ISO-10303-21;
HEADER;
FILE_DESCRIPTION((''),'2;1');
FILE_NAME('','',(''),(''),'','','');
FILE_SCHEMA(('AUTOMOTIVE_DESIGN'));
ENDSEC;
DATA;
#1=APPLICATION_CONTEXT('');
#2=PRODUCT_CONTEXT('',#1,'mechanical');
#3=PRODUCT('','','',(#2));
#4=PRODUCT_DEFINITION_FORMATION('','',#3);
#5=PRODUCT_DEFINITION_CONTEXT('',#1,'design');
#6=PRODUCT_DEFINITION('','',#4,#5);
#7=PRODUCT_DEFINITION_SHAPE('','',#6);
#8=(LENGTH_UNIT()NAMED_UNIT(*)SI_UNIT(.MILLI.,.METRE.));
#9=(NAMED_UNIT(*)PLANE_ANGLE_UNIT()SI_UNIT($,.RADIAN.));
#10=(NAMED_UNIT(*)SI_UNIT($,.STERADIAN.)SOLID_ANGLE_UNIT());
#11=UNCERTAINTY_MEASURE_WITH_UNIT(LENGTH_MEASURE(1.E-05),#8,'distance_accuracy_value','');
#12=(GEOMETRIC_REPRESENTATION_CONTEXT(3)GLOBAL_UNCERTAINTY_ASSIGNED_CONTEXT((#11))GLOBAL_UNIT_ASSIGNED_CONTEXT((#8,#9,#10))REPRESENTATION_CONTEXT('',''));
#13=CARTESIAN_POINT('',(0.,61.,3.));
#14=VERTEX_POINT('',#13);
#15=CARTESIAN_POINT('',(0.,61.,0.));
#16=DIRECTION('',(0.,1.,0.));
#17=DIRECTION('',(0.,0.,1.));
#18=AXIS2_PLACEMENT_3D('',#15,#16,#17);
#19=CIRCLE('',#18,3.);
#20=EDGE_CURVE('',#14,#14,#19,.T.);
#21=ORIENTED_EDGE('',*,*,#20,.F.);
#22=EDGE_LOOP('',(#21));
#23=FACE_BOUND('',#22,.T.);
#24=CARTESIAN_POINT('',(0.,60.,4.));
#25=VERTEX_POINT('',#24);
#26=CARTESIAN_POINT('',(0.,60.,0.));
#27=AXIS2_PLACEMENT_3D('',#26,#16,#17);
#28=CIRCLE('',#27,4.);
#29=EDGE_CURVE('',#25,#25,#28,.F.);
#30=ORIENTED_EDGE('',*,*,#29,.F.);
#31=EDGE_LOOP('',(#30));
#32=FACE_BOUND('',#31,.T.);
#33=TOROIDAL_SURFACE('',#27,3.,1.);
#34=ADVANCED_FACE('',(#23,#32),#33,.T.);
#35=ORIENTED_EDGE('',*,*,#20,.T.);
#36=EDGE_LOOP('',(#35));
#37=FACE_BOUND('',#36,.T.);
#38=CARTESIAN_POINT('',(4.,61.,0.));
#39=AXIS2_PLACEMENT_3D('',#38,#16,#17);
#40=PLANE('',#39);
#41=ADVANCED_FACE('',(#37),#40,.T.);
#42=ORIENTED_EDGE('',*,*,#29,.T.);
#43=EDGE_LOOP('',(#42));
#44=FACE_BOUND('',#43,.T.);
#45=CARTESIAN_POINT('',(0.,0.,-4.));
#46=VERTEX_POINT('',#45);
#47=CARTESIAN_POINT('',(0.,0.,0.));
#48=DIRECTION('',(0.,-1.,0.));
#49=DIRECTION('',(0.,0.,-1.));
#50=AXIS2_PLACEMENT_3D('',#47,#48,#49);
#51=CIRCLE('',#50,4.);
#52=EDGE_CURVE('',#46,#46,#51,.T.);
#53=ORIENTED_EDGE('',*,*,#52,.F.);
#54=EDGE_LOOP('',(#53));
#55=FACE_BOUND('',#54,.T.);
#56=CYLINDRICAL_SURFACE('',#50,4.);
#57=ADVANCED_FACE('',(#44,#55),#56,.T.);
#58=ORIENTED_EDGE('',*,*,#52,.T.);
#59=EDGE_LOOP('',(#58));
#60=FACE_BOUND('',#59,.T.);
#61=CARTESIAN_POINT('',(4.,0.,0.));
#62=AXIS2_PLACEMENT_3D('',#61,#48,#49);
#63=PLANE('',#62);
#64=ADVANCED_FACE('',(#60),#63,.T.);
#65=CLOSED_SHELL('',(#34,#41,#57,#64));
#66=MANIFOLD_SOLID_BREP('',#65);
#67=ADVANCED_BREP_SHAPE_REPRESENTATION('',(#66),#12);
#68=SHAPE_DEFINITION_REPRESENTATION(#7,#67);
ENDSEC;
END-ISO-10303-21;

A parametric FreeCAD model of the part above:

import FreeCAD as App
import Part
import Sketcher
from FreeCAD import Vector


def edges_at(feature, points):
    """Names of the edges that pass closest to the given points."""
    edges = feature.Shape.Edges
    near = lambda p: min(range(len(edges)), key=lambda i: edges[i].distToShape(Part.Vertex(*p))[0])
    return sorted({f"Edge{near(p) + 1}" for p in points})


def add_polygon(sketch, points):
    """Adds a closed chain of lines whose ends are joined by coincident constraints."""
    first, n = sketch.GeometryCount, len(points)
    for a, b in zip(points, points[1:] + points[:1]):
        sketch.addGeometry(Part.LineSegment(App.Vector(*a, 0), App.Vector(*b, 0)), False)
    for i in range(n):
        sketch.addConstraint(Sketcher.Constraint("Coincident", first + i, 2, first + (i + 1) % n, 1))

doc = App.newDocument("Part")
params = doc.addObject("Spreadsheet::Sheet", "Params")
for row, (alias, value) in enumerate([
    ("sketch1_width", "4 mm"),
    ("sketch1_height", "61 mm"),
    ("revolution_angle", "360 deg"),
    ("fillet_radius", "1 mm"),
], start=1):
    params.set(f"A{row}", alias)
    params.set(f"B{row}", "=" + value)
    params.setAlias(f"B{row}", alias)

body = doc.addObject("PartDesign::Body", "Body")

# Sketch on XY plane
sketch1 = doc.addObject("Sketcher::SketchObject", "Sketch")
body.addObject(sketch1)
sketch1.AttachmentSupport = (doc.XY_Plane, [""])
sketch1.MapMode = "FlatFace"
add_polygon(sketch1, [(0, 61), (0, 0), (4, 0), (4, 61)])  # lines 0-3
sketch1.addConstraint(Sketcher.Constraint("Vertical", 0))
sketch1.addConstraint(Sketcher.Constraint("Horizontal", 1))
sketch1.addConstraint(Sketcher.Constraint("Vertical", 2))
sketch1.addConstraint(Sketcher.Constraint("Horizontal", 3))
sketch1.addConstraint(Sketcher.Constraint("Coincident", 0, 2, -1, 1))
sketch1.addConstraint(Sketcher.Constraint("DistanceX", 1, 1, 1, 2, 4.0))
sketch1.addConstraint(Sketcher.Constraint("DistanceY", 0, 2, 0, 1, 61.0))
sketch1.setExpression("Constraints[9]", "Params.sketch1_width")
sketch1.setExpression("Constraints[10]", "Params.sketch1_height")
revolution = doc.addObject("PartDesign::Revolution", "Revolution")
body.addObject(revolution)
revolution.Profile = sketch1
revolution.ReferenceAxis = (sketch1, ["V_Axis"])
revolution.setExpression("Angle", "Params.revolution_angle")
doc.recompute()

fillet = doc.addObject("PartDesign::Fillet", "Fillet")
body.addObject(fillet)
fillet.Base = (revolution, edges_at(revolution, [(0, 61, 4)]))
fillet.setExpression("Radius", "Params.fillet_radius")

doc.recompute()
